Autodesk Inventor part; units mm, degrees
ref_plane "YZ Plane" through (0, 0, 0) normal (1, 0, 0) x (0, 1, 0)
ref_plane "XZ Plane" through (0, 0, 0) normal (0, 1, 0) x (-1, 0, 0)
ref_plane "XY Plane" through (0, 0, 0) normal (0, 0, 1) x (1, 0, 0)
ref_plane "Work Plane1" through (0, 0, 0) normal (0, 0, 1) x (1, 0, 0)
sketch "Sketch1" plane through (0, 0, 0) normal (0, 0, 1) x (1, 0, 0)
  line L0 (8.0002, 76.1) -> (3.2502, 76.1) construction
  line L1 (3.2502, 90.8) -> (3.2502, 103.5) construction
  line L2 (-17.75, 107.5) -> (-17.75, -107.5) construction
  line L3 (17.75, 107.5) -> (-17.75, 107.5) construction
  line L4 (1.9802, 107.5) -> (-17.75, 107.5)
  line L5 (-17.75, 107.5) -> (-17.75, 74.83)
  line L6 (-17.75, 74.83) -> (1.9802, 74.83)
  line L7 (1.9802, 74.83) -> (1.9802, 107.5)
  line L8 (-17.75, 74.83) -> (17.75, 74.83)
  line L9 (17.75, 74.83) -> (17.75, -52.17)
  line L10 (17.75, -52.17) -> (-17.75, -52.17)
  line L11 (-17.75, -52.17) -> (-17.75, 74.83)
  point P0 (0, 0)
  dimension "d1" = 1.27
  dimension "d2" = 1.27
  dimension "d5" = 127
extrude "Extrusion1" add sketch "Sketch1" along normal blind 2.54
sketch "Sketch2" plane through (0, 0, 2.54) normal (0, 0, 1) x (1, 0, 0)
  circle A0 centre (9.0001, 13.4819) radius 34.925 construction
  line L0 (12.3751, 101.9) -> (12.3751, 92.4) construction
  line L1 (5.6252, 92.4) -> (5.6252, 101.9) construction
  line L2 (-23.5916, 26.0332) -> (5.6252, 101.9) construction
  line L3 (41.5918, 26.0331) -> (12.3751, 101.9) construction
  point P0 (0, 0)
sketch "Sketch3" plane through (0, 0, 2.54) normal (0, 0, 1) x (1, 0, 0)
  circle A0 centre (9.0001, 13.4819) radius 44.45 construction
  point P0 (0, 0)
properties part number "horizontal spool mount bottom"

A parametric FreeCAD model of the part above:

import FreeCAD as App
import Part
import Sketcher
Q = App.Units.Quantity


def add_polygon(sketch, points):
    """Adds a closed chain of lines whose ends are joined by coincident constraints."""
    first, n = sketch.GeometryCount, len(points)
    for a, b in zip(points, points[1:] + points[:1]):
        sketch.addGeometry(Part.LineSegment(App.Vector(*a, 0), App.Vector(*b, 0)), False)
    for i in range(n):
        sketch.addConstraint(Sketcher.Constraint("Coincident", first + i, 2, first + (i + 1) % n, 1))

doc = App.newDocument("Part")
params = doc.addObject("Spreadsheet::Sheet", "Params")
for row, (alias, value) in enumerate([
    ("sketch1_height", "5 in"),
    ("pad1_length", "0.1 in"),
], start=1):
    params.set(f"A{row}", alias)
    params.set(f"B{row}", "=" + value)
    params.setAlias(f"B{row}", alias)

body = doc.addObject("PartDesign::Body", "Body")

sketch1 = body.newObject("Sketcher::SketchObject", "Sketch")
sketch1.AttachmentSupport = (doc.getObject("XY_Plane"), [""])
sketch1.MapMode = "FlatFace"
add_polygon(sketch1, [(2, 75), (2, 108), (-18, 108), (-18, -52), (18, -52), (18, 75)])
sketch1.addConstraint([
    Sketcher.Constraint("Vertical", 0),
    Sketcher.Constraint("Horizontal", 1),
    Sketcher.Constraint("Vertical", 2),
    Sketcher.Constraint("Horizontal", 3),
    Sketcher.Constraint("Vertical", 4),
    Sketcher.Constraint("Horizontal", 5),
    Sketcher.Constraint("DistanceY", 4, 1, 4, 2, Q("5 in")),
    Sketcher.Constraint("DistanceX", 1, 2, 1, 1, Q("19.7302 mm")),
    Sketcher.Constraint("DistanceX", 3, 1, 3, 2, Q("35.5 mm")),
    Sketcher.Constraint("DistanceY", 0, 1, 0, 2, Q("32.67 mm")),
    Sketcher.Constraint("DistanceX", -1, 1, 0, 2, Q("1.9802 mm")),
    Sketcher.Constraint("DistanceY", -1, 1, 0, 2, Q("107.5 mm")),
])
sketch1.setExpression("Constraints[12]", "Params.sketch1_height")
pad1 = body.newObject("PartDesign::Pad", "Pad")
pad1.Profile = sketch1
pad1.setExpression("Length", "Params.pad1_length")

doc.recompute()
